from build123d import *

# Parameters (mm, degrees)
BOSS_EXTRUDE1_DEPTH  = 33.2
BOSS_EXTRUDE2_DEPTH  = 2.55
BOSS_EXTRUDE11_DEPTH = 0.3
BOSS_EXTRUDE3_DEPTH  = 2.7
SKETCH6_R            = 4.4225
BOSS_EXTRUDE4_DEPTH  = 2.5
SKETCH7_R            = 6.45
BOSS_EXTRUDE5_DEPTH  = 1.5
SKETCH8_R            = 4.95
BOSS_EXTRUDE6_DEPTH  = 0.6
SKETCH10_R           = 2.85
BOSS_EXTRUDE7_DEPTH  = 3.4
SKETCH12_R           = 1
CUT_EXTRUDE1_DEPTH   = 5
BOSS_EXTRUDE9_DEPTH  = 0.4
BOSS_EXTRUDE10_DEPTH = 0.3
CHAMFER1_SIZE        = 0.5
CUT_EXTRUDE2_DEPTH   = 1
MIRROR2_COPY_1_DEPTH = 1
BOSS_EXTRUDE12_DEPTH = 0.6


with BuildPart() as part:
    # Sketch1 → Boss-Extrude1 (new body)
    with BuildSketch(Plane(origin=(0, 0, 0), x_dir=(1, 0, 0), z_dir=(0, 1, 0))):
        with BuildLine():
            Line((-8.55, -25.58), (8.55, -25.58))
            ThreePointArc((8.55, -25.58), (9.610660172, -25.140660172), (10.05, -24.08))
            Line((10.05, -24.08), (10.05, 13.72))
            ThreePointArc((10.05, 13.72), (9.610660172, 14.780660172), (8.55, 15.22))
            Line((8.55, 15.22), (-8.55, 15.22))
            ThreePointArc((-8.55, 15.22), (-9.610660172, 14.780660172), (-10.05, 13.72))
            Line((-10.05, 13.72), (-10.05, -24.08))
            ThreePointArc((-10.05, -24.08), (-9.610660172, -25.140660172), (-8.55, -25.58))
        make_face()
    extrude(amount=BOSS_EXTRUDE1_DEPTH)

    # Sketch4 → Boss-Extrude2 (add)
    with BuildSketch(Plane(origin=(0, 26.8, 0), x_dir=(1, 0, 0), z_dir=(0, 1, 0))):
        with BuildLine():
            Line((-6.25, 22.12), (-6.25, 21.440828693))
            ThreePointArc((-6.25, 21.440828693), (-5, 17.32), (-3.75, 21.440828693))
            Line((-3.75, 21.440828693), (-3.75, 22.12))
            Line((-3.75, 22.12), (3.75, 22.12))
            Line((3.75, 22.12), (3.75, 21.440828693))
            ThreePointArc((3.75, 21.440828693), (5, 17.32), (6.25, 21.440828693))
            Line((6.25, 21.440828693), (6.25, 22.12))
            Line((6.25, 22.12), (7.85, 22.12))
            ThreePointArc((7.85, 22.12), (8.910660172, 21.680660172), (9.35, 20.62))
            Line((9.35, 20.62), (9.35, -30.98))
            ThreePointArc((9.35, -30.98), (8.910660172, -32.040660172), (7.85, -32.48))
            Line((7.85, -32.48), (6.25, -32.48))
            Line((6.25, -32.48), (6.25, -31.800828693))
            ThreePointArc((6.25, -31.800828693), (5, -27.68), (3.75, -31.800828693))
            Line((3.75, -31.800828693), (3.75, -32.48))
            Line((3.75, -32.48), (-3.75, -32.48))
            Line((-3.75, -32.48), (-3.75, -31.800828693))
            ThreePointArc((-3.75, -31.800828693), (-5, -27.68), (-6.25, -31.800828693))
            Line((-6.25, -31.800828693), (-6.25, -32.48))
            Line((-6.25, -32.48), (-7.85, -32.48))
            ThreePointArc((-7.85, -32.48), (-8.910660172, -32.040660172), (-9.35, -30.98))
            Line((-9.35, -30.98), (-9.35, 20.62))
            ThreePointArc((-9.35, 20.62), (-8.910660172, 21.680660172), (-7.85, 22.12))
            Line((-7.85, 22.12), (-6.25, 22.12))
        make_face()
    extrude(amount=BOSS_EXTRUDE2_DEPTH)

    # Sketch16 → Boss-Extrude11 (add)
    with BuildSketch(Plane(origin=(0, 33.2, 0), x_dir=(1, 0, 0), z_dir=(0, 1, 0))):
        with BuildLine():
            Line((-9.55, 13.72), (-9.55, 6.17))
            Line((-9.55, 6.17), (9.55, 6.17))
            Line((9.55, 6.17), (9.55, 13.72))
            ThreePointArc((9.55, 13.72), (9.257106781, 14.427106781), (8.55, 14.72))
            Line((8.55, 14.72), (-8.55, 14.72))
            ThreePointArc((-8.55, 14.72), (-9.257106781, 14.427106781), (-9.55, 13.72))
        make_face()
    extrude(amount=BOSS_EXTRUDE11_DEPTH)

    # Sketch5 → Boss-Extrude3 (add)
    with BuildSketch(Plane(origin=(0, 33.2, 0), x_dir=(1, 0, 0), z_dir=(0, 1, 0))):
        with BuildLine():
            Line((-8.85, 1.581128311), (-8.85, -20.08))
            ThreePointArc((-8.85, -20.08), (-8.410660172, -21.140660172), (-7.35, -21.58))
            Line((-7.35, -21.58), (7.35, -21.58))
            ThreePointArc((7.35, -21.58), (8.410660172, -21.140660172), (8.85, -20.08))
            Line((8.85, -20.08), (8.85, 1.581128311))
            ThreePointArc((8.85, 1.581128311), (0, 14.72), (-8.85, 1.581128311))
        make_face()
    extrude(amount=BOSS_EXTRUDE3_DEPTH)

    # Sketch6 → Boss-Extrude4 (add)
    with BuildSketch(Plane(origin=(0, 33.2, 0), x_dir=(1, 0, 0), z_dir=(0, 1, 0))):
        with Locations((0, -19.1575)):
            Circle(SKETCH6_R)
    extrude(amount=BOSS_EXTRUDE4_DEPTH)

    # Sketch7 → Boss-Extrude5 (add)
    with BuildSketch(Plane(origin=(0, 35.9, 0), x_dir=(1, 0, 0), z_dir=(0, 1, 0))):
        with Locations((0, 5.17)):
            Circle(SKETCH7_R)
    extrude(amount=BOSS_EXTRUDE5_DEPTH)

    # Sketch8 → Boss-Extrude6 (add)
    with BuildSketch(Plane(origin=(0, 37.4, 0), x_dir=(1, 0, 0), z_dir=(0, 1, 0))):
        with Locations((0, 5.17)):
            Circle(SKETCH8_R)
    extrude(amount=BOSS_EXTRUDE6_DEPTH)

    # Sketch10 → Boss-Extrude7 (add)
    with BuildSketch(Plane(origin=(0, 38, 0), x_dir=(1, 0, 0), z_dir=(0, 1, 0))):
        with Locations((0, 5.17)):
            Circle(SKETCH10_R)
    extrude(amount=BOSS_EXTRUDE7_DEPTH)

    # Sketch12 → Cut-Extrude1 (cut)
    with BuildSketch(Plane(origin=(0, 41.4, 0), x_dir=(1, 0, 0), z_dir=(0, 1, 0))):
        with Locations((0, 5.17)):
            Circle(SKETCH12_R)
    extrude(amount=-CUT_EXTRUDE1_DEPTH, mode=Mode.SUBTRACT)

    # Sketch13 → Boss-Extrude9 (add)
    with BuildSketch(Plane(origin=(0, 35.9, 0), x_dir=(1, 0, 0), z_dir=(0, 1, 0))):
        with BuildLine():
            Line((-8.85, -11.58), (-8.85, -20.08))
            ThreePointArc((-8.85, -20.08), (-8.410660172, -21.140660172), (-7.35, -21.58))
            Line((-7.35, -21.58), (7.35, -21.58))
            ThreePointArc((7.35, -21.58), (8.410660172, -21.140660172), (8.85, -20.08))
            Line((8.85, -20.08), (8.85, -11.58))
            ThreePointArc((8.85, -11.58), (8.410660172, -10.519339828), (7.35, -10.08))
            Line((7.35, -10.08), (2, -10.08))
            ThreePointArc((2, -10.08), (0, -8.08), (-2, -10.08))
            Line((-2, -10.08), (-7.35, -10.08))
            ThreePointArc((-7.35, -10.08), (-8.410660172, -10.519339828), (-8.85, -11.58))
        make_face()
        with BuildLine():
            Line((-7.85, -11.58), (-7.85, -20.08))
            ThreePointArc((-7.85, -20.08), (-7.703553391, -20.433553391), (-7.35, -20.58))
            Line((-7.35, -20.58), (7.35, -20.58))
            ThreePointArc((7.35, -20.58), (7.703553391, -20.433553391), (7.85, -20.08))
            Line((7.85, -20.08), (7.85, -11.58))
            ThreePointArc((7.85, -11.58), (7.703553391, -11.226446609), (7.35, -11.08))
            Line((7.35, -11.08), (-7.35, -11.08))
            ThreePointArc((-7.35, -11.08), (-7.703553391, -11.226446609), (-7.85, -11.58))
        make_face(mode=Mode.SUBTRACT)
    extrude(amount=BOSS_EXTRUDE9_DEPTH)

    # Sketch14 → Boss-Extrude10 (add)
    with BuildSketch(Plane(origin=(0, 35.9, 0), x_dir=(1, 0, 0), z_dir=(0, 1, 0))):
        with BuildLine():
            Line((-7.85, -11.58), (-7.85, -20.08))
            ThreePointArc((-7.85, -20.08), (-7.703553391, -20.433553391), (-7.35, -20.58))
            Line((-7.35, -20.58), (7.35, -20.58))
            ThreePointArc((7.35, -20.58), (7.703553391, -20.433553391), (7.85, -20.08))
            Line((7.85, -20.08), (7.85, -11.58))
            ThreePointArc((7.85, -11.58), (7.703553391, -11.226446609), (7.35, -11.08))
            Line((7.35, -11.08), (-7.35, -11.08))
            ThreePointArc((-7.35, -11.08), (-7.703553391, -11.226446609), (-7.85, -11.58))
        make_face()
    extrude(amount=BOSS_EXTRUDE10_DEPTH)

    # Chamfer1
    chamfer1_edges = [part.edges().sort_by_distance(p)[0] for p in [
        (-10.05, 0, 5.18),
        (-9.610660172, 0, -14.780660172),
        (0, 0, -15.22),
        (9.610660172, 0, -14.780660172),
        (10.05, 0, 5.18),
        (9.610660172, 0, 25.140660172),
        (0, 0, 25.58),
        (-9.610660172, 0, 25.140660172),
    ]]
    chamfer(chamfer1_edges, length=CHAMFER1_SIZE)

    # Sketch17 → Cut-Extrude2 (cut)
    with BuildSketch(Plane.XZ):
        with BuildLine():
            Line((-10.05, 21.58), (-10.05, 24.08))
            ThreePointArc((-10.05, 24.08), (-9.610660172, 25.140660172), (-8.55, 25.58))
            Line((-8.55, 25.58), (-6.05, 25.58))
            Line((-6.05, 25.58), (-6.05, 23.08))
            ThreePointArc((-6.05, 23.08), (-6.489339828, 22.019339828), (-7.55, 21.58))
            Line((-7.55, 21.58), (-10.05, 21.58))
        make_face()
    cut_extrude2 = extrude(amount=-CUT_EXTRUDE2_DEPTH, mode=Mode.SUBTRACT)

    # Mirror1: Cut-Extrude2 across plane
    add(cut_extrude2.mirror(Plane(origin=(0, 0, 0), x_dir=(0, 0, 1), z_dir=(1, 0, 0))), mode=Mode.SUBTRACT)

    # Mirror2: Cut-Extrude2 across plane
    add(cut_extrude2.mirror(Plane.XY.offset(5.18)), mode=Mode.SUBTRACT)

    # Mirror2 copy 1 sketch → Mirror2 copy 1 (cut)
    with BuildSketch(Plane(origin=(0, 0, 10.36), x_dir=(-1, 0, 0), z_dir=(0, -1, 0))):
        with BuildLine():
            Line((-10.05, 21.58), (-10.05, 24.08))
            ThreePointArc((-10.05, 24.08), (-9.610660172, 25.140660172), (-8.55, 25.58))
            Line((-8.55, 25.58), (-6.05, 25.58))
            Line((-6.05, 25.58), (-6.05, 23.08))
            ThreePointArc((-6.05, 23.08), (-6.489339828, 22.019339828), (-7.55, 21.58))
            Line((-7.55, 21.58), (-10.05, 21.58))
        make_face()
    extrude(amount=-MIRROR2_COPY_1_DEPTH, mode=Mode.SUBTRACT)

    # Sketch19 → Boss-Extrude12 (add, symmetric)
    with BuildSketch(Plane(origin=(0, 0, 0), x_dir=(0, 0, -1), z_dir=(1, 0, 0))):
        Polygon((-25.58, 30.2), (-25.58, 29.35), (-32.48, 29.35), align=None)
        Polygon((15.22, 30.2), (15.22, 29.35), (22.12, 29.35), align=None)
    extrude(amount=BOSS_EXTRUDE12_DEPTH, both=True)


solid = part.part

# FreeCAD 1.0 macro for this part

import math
import FreeCAD as App
import Part
import Sketcher

V = App.Vector


def edges_at(feature, points):
    """Names of the edges that pass closest to the given points."""
    edges = feature.Shape.Edges
    near = lambda p: min(range(len(edges)), key=lambda i: edges[i].distToShape(Part.Vertex(*p))[0])
    return sorted({f"Edge{near(p) + 1}" for p in points})

doc = App.newDocument("Part")
body = doc.addObject("PartDesign::Body", "Body")

# Sketch on XZ plane
sketch1 = body.newObject("Sketcher::SketchObject", "Sketch")
sketch1.AttachmentSupport = (doc.getObject("XZ_Plane"), [""])
sketch1.MapMode = "FlatFace"
sketch1.addGeometry(Part.LineSegment(V(-8.55, 25.58, 0), V(8.55, 25.58, 0)), False)
sketch1.addGeometry(Part.ArcOfCircle(Part.Circle(V(8.55, 24.08, 0), V(0, 0, 1), 1.5), math.radians(0), math.radians(90)), False)
sketch1.addGeometry(Part.LineSegment(V(10.05, 24.08, 0), V(10.05, -13.72, 0)), False)
sketch1.addGeometry(Part.ArcOfCircle(Part.Circle(V(8.55, -13.72, 0), V(0, 0, 1), 1.5), math.radians(-90), math.radians(0)), False)
sketch1.addGeometry(Part.LineSegment(V(8.55, -15.22, 0), V(-8.55, -15.22, 0)), False)
sketch1.addGeometry(Part.ArcOfCircle(Part.Circle(V(-8.55, -13.72, 0), V(0, 0, 1), 1.5), math.radians(180), math.radians(270)), False)
sketch1.addGeometry(Part.LineSegment(V(-10.05, -13.72, 0), V(-10.05, 24.08, 0)), False)
sketch1.addGeometry(Part.ArcOfCircle(Part.Circle(V(-8.55, 24.08, 0), V(0, 0, 1), 1.5), math.radians(90), math.radians(180)), False)
sketch1.addConstraint(Sketcher.Constraint("Tangent", 0, 2, 1, 2))
sketch1.addConstraint(Sketcher.Constraint("Tangent", 1, 1, 2, 1))
sketch1.addConstraint(Sketcher.Constraint("Tangent", 2, 2, 3, 2))
sketch1.addConstraint(Sketcher.Constraint("Tangent", 3, 1, 4, 1))
sketch1.addConstraint(Sketcher.Constraint("Tangent", 4, 2, 5, 2))
sketch1.addConstraint(Sketcher.Constraint("Tangent", 5, 1, 6, 1))
sketch1.addConstraint(Sketcher.Constraint("Tangent", 6, 2, 7, 2))
sketch1.addConstraint(Sketcher.Constraint("Tangent", 7, 1, 0, 1))
sketch1.addConstraint(Sketcher.Constraint("Horizontal", 0))
sketch1.addConstraint(Sketcher.Constraint("Vertical", 2))
sketch1.addConstraint(Sketcher.Constraint("Horizontal", 4))
sketch1.addConstraint(Sketcher.Constraint("Vertical", 6))
sketch1.addConstraint(Sketcher.Constraint("Equal", 1, 3))
sketch1.addConstraint(Sketcher.Constraint("Equal", 3, 5))
sketch1.addConstraint(Sketcher.Constraint("Equal", 5, 7))
sketch1.addConstraint(Sketcher.Constraint("Radius", 1, 1.5))
sketch1.addConstraint(Sketcher.Constraint("DistanceX", 0, 1, 0, 2, 17.1))
sketch1.addConstraint(Sketcher.Constraint("DistanceY", 2, 2, 2, 1, 37.8))
sketch1.addConstraint(Sketcher.Constraint("DistanceX", -1, 1, 1, 3, 8.55))
sketch1.addConstraint(Sketcher.Constraint("DistanceY", -1, 1, 1, 3, 24.08))
pad1 = body.newObject("PartDesign::Pad", "Pad")
pad1.Profile = sketch1
pad1.Length = 33.2
pad1.Reversed = True

# Sketch on XZ plane
sketch2 = body.newObject("Sketcher::SketchObject", "Sketch001")
sketch2.AttachmentSupport = (doc.getObject("XZ_Plane"), [""])
sketch2.MapMode = "FlatFace"
sketch2.AttachmentOffset = App.Placement(V(0, 0, -26.8), App.Rotation())
sketch2.addGeometry(Part.LineSegment(V(-6.25, -21.440829, 0), V(-6.25, -22.12, 0)), False)
sketch2.addGeometry(Part.LineSegment(V(-6.25, -22.12, 0), V(-7.85, -22.12, 0)), False)
sketch2.addGeometry(Part.ArcOfCircle(Part.Circle(V(-7.85, -20.62, 0), V(0, 0, 1), 1.5), math.radians(180), math.radians(270)), False)
sketch2.addGeometry(Part.LineSegment(V(-9.35, -20.62, 0), V(-9.35, 30.98, 0)), False)
sketch2.addGeometry(Part.ArcOfCircle(Part.Circle(V(-7.85, 30.98, 0), V(0, 0, 1), 1.5), math.radians(90), math.radians(180)), False)
sketch2.addGeometry(Part.LineSegment(V(-7.85, 32.48, 0), V(-6.25, 32.48, 0)), False)
sketch2.addGeometry(Part.LineSegment(V(-6.25, 32.48, 0), V(-6.25, 31.800829, 0)), False)
sketch2.addGeometry(Part.ArcOfCircle(Part.Circle(V(-5, 29.93, 0), V(0, 0, 1), 2.25), math.radians(123.748989), math.radians(416.251011)), False)
sketch2.addGeometry(Part.LineSegment(V(-3.75, 31.800829, 0), V(-3.75, 32.48, 0)), False)
sketch2.addGeometry(Part.LineSegment(V(-3.75, 32.48, 0), V(3.75, 32.48, 0)), False)
sketch2.addGeometry(Part.LineSegment(V(3.75, 32.48, 0), V(3.75, 31.800829, 0)), False)
sketch2.addGeometry(Part.ArcOfCircle(Part.Circle(V(5, 29.93, 0), V(0, 0, 1), 2.25), math.radians(123.748989), math.radians(416.251011)), False)
sketch2.addGeometry(Part.LineSegment(V(6.25, 31.800829, 0), V(6.25, 32.48, 0)), False)
sketch2.addGeometry(Part.LineSegment(V(6.25, 32.48, 0), V(7.85, 32.48, 0)), False)
sketch2.addGeometry(Part.ArcOfCircle(Part.Circle(V(7.85, 30.98, 0), V(0, 0, 1), 1.5), math.radians(0), math.radians(90)), False)
sketch2.addGeometry(Part.LineSegment(V(9.35, 30.98, 0), V(9.35, -20.62, 0)), False)
sketch2.addGeometry(Part.ArcOfCircle(Part.Circle(V(7.85, -20.62, 0), V(0, 0, 1), 1.5), math.radians(-90), math.radians(0)), False)
sketch2.addGeometry(Part.LineSegment(V(7.85, -22.12, 0), V(6.25, -22.12, 0)), False)
sketch2.addGeometry(Part.LineSegment(V(6.25, -22.12, 0), V(6.25, -21.440829, 0)), False)
sketch2.addGeometry(Part.ArcOfCircle(Part.Circle(V(5, -19.57, 0), V(0, 0, 1), 2.25), math.radians(-56.251011), math.radians(236.251011)), False)
sketch2.addGeometry(Part.LineSegment(V(3.75, -21.440829, 0), V(3.75, -22.12, 0)), False)
sketch2.addGeometry(Part.LineSegment(V(3.75, -22.12, 0), V(-3.75, -22.12, 0)), False)
sketch2.addGeometry(Part.LineSegment(V(-3.75, -22.12, 0), V(-3.75, -21.440829, 0)), False)
sketch2.addGeometry(Part.ArcOfCircle(Part.Circle(V(-5, -19.57, 0), V(0, 0, 1), 2.25), math.radians(-56.251011), math.radians(236.251011)), False)
sketch2.addConstraint(Sketcher.Constraint("Coincident", 0, 2, 1, 1))
sketch2.addConstraint(Sketcher.Constraint("Tangent", 1, 2, 2, 2))
sketch2.addConstraint(Sketcher.Constraint("Tangent", 2, 1, 3, 1))
sketch2.addConstraint(Sketcher.Constraint("Tangent", 3, 2, 4, 2))
sketch2.addConstraint(Sketcher.Constraint("Tangent", 4, 1, 5, 1))
sketch2.addConstraint(Sketcher.Constraint("Coincident", 5, 2, 6, 1))
sketch2.addConstraint(Sketcher.Constraint("Coincident", 6, 2, 7, 1))
sketch2.addConstraint(Sketcher.Constraint("Coincident", 7, 2, 8, 1))
sketch2.addConstraint(Sketcher.Constraint("Coincident", 8, 2, 9, 1))
sketch2.addConstraint(Sketcher.Constraint("Coincident", 9, 2, 10, 1))
sketch2.addConstraint(Sketcher.Constraint("Coincident", 10, 2, 11, 1))
sketch2.addConstraint(Sketcher.Constraint("Coincident", 11, 2, 12, 1))
sketch2.addConstraint(Sketcher.Constraint("Coincident", 12, 2, 13, 1))
sketch2.addConstraint(Sketcher.Constraint("Tangent", 13, 2, 14, 2))
sketch2.addConstraint(Sketcher.Constraint("Tangent", 14, 1, 15, 1))
sketch2.addConstraint(Sketcher.Constraint("Tangent", 15, 2, 16, 2))
sketch2.addConstraint(Sketcher.Constraint("Tangent", 16, 1, 17, 1))
sketch2.addConstraint(Sketcher.Constraint("Coincident", 17, 2, 18, 1))
sketch2.addConstraint(Sketcher.Constraint("Coincident", 18, 2, 19, 1))
sketch2.addConstraint(Sketcher.Constraint("Coincident", 19, 2, 20, 1))
sketch2.addConstraint(Sketcher.Constraint("Coincident", 20, 2, 21, 1))
sketch2.addConstraint(Sketcher.Constraint("Coincident", 21, 2, 22, 1))
sketch2.addConstraint(Sketcher.Constraint("Coincident", 22, 2, 23, 1))
sketch2.addConstraint(Sketcher.Constraint("Coincident", 23, 2, 0, 1))
sketch2.addConstraint(Sketcher.Constraint("Vertical", 0))
sketch2.addConstraint(Sketcher.Constraint("Horizontal", 1))
sketch2.addConstraint(Sketcher.Constraint("Vertical", 3))
sketch2.addConstraint(Sketcher.Constraint("Horizontal", 5))
sketch2.addConstraint(Sketcher.Constraint("Vertical", 6))
sketch2.addConstraint(Sketcher.Constraint("Vertical", 8))
sketch2.addConstraint(Sketcher.Constraint("Horizontal", 9))
sketch2.addConstraint(Sketcher.Constraint("Vertical", 10))
sketch2.addConstraint(Sketcher.Constraint("Vertical", 12))
sketch2.addConstraint(Sketcher.Constraint("Horizontal", 13))
sketch2.addConstraint(Sketcher.Constraint("Vertical", 15))
sketch2.addConstraint(Sketcher.Constraint("Horizontal", 17))
sketch2.addConstraint(Sketcher.Constraint("Vertical", 18))
sketch2.addConstraint(Sketcher.Constraint("Vertical", 20))
sketch2.addConstraint(Sketcher.Constraint("Horizontal", 21))
sketch2.addConstraint(Sketcher.Constraint("Vertical", 22))
sketch2.addConstraint(Sketcher.Constraint("Equal", 2, 4))
sketch2.addConstraint(Sketcher.Constraint("Equal", 7, 11))
sketch2.addConstraint(Sketcher.Constraint("Equal", 4, 14))
sketch2.addConstraint(Sketcher.Constraint("Equal", 14, 16))
sketch2.addConstraint(Sketcher.Constraint("Equal", 11, 19))
sketch2.addConstraint(Sketcher.Constraint("Equal", 19, 23))
sketch2.addConstraint(Sketcher.Constraint("Symmetric", 7, 3, 11, 3, -2))
sketch2.addConstraint(Sketcher.Constraint("Symmetric", 4, 3, 14, 3, -2))
sketch2.addConstraint(Sketcher.Constraint("Symmetric", 19, 3, 23, 3, -2))
sketch2.addConstraint(Sketcher.Constraint("Symmetric", 0, 2, 17, 2, -2))
sketch2.addConstraint(Sketcher.Constraint("Horizontal", 6, 2, 7, 2))
sketch2.addConstraint(Sketcher.Constraint("Horizontal", 5, 2, 8, 2))
sketch2.addConstraint(Sketcher.Constraint("Horizontal", 7, 2, 10, 2))
sketch2.addConstraint(Sketcher.Constraint("Horizontal", 10, 2, 11, 2))
sketch2.addConstraint(Sketcher.Constraint("Horizontal", 18, 2, 19, 2))
sketch2.addConstraint(Sketcher.Constraint("Horizontal", 17, 2, 20, 2))
sketch2.addConstraint(Sketcher.Constraint("Horizontal", 19, 2, 22, 2))
sketch2.addConstraint(Sketcher.Constraint("Vertical", 11, 3, 19, 3))
sketch2.addConstraint(Sketcher.Constraint("Vertical", 0, 2, 5, 2))
sketch2.addConstraint(Sketcher.Constraint("Equal", 0, 6))
sketch2.addConstraint(Sketcher.Constraint("Radius", 2, 1.5))
sketch2.addConstraint(Sketcher.Constraint("Radius", 7, 2.25))
sketch2.addConstraint(Sketcher.Constraint("DistanceX", 1, 2, 1, 1, 1.6))
sketch2.addConstraint(Sketcher.Constraint("DistanceX", 9, 1, 9, 2, 7.5))
sketch2.addConstraint(Sketcher.Constraint("DistanceY", 3, 1, 3, 2, 51.6))
sketch2.addConstraint(Sketcher.Constraint("DistanceX", 7, 3, -1, 1, 5.0))
sketch2.addConstraint(Sketcher.Constraint("DistanceY", 19, 3, 11, 3, 49.5))
sketch2.addConstraint(Sketcher.Constraint("DistanceY", 2, 3, -1, 1, 20.62))
pad2 = body.newObject("PartDesign::Pad", "Pad001")
pad2.Profile = sketch2
pad2.Length = 2.55
pad2.Reversed = True

# Sketch on XZ plane
sketch3 = body.newObject("Sketcher::SketchObject", "Sketch002")
sketch3.AttachmentSupport = (doc.getObject("XZ_Plane"), [""])
sketch3.MapMode = "FlatFace"
sketch3.AttachmentOffset = App.Placement(V(0, 0, -33.2), App.Rotation())
sketch3.addGeometry(Part.LineSegment(V(-9.55, -13.72, 0), V(-9.55, -6.17, 0)), False)
sketch3.addGeometry(Part.LineSegment(V(-9.55, -6.17, 0), V(9.55, -6.17, 0)), False)
sketch3.addGeometry(Part.LineSegment(V(9.55, -6.17, 0), V(9.55, -13.72, 0)), False)
sketch3.addGeometry(Part.ArcOfCircle(Part.Circle(V(8.55, -13.72, 0), V(0, 0, 1), 1), math.radians(-90), math.radians(0)), False)
sketch3.addGeometry(Part.LineSegment(V(8.55, -14.72, 0), V(-8.55, -14.72, 0)), False)
sketch3.addGeometry(Part.ArcOfCircle(Part.Circle(V(-8.55, -13.72, 0), V(0, 0, 1), 1), math.radians(-180), math.radians(-90)), False)
sketch3.addConstraint(Sketcher.Constraint("Coincident", 0, 2, 1, 1))
sketch3.addConstraint(Sketcher.Constraint("Coincident", 1, 2, 2, 1))
sketch3.addConstraint(Sketcher.Constraint("Tangent", 2, 2, 3, 2))
sketch3.addConstraint(Sketcher.Constraint("Tangent", 3, 1, 4, 1))
sketch3.addConstraint(Sketcher.Constraint("Tangent", 4, 2, 5, 2))
sketch3.addConstraint(Sketcher.Constraint("Tangent", 5, 1, 0, 1))
sketch3.addConstraint(Sketcher.Constraint("Vertical", 0))
sketch3.addConstraint(Sketcher.Constraint("Horizontal", 1))
sketch3.addConstraint(Sketcher.Constraint("Vertical", 2))
sketch3.addConstraint(Sketcher.Constraint("Horizontal", 4))
sketch3.addConstraint(Sketcher.Constraint("Equal", 3, 5))
sketch3.addConstraint(Sketcher.Constraint("Radius", 3, 1.0))
sketch3.addConstraint(Sketcher.Constraint("DistanceX", 1, 1, 1, 2, 19.1))
sketch3.addConstraint(Sketcher.Constraint("DistanceY", 0, 1, 0, 2, 7.55))
sketch3.addConstraint(Sketcher.Constraint("DistanceX", -1, 1, 3, 3, 8.55))
sketch3.addConstraint(Sketcher.Constraint("DistanceY", 3, 3, -1, 1, 13.72))
pad3 = body.newObject("PartDesign::Pad", "Pad002")
pad3.Profile = sketch3
pad3.Length = 0.3
pad3.Reversed = True

# Sketch on XZ plane
sketch4 = body.newObject("Sketcher::SketchObject", "Sketch003")
sketch4.AttachmentSupport = (doc.getObject("XZ_Plane"), [""])
sketch4.MapMode = "FlatFace"
sketch4.AttachmentOffset = App.Placement(V(0, 0, -33.2), App.Rotation())
sketch4.addGeometry(Part.LineSegment(V(-8.85, -1.581128, 0), V(-8.85, 20.08, 0)), False)
sketch4.addGeometry(Part.ArcOfCircle(Part.Circle(V(-7.35, 20.08, 0), V(0, 0, 1), 1.5), math.radians(90), math.radians(180)), False)
sketch4.addGeometry(Part.LineSegment(V(-7.35, 21.58, 0), V(7.35, 21.58, 0)), False)
sketch4.addGeometry(Part.ArcOfCircle(Part.Circle(V(7.35, 20.08, 0), V(0, 0, 1), 1.5), math.radians(0), math.radians(90)), False)
sketch4.addGeometry(Part.LineSegment(V(8.85, 20.08, 0), V(8.85, -1.581128, 0)), False)
sketch4.addGeometry(Part.ArcOfCircle(Part.Circle(V(0, -5.17, 0), V(0, 0, 1), 9.55), math.radians(157.926352), math.radians(382.073648)), False)
sketch4.addConstraint(Sketcher.Constraint("Tangent", 0, 2, 1, 2))
sketch4.addConstraint(Sketcher.Constraint("Tangent", 1, 1, 2, 1))
sketch4.addConstraint(Sketcher.Constraint("Tangent", 2, 2, 3, 2))
sketch4.addConstraint(Sketcher.Constraint("Tangent", 3, 1, 4, 1))
sketch4.addConstraint(Sketcher.Constraint("Coincident", 4, 2, 5, 2))
sketch4.addConstraint(Sketcher.Constraint("Coincident", 5, 1, 0, 1))
sketch4.addConstraint(Sketcher.Constraint("Vertical", 0))
sketch4.addConstraint(Sketcher.Constraint("Horizontal", 2))
sketch4.addConstraint(Sketcher.Constraint("Vertical", 4))
sketch4.addConstraint(Sketcher.Constraint("Equal", 1, 3))
sketch4.addConstraint(Sketcher.Constraint("Symmetric", 4, 2, 5, 1, -2))
sketch4.addConstraint(Sketcher.Constraint("Radius", 1, 1.5))
sketch4.addConstraint(Sketcher.Constraint("Radius", 5, 9.55))
sketch4.addConstraint(Sketcher.Constraint("DistanceX", 2, 1, 2, 2, 14.7))
sketch4.addConstraint(Sketcher.Constraint("DistanceY", -1, 1, 1, 3, 20.08))
sketch4.addConstraint(Sketcher.Constraint("DistanceY", 5, 3, -1, 1, 5.17))
pad4 = body.newObject("PartDesign::Pad", "Pad003")
pad4.Profile = sketch4
pad4.Length = 2.7
pad4.Reversed = True

# Sketch on XZ plane
sketch5 = body.newObject("Sketcher::SketchObject", "Sketch004")
sketch5.AttachmentSupport = (doc.getObject("XZ_Plane"), [""])
sketch5.MapMode = "FlatFace"
sketch5.AttachmentOffset = App.Placement(V(0, 0, -33.2), App.Rotation())
sketch5.addGeometry(Part.Circle(V(0, 19.1575, 0), V(0, 0, 1), 4.4225), False)
sketch5.addConstraint(Sketcher.Constraint("PointOnObject", 0, 3, -2))
sketch5.addConstraint(Sketcher.Constraint("Diameter", 0, 8.845))
sketch5.addConstraint(Sketcher.Constraint("DistanceY", -1, 1, 0, 3, 19.1575))
pad5 = body.newObject("PartDesign::Pad", "Pad004")
pad5.Profile = sketch5
pad5.Length = 2.5
pad5.Reversed = True

# Sketch on XZ plane
sketch6 = body.newObject("Sketcher::SketchObject", "Sketch005")
sketch6.AttachmentSupport = (doc.getObject("XZ_Plane"), [""])
sketch6.MapMode = "FlatFace"
sketch6.AttachmentOffset = App.Placement(V(0, 0, -35.9), App.Rotation())
sketch6.addGeometry(Part.Circle(V(0, -5.17, 0), V(0, 0, 1), 6.45), False)
sketch6.addConstraint(Sketcher.Constraint("PointOnObject", 0, 3, -2))
sketch6.addConstraint(Sketcher.Constraint("Diameter", 0, 12.9))
sketch6.addConstraint(Sketcher.Constraint("DistanceY", 0, 3, -1, 1, 5.17))
pad6 = body.newObject("PartDesign::Pad", "Pad005")
pad6.Profile = sketch6
pad6.Length = 1.5
pad6.Reversed = True

# Sketch on XZ plane
sketch7 = body.newObject("Sketcher::SketchObject", "Sketch006")
sketch7.AttachmentSupport = (doc.getObject("XZ_Plane"), [""])
sketch7.MapMode = "FlatFace"
sketch7.AttachmentOffset = App.Placement(V(0, 0, -37.4), App.Rotation())
sketch7.addGeometry(Part.Circle(V(0, -5.17, 0), V(0, 0, 1), 4.95), False)
sketch7.addConstraint(Sketcher.Constraint("PointOnObject", 0, 3, -2))
sketch7.addConstraint(Sketcher.Constraint("Diameter", 0, 9.9))
sketch7.addConstraint(Sketcher.Constraint("DistanceY", 0, 3, -1, 1, 5.17))
pad7 = body.newObject("PartDesign::Pad", "Pad006")
pad7.Profile = sketch7
pad7.Length = 0.6
pad7.Reversed = True

# Sketch on XZ plane
sketch8 = body.newObject("Sketcher::SketchObject", "Sketch007")
sketch8.AttachmentSupport = (doc.getObject("XZ_Plane"), [""])
sketch8.MapMode = "FlatFace"
sketch8.AttachmentOffset = App.Placement(V(0, 0, -38), App.Rotation())
sketch8.addGeometry(Part.Circle(V(0, -5.17, 0), V(0, 0, 1), 2.85), False)
sketch8.addConstraint(Sketcher.Constraint("PointOnObject", 0, 3, -2))
sketch8.addConstraint(Sketcher.Constraint("Diameter", 0, 5.7))
sketch8.addConstraint(Sketcher.Constraint("DistanceY", 0, 3, -1, 1, 5.17))
pad8 = body.newObject("PartDesign::Pad", "Pad007")
pad8.Profile = sketch8
pad8.Length = 3.4
pad8.Reversed = True

# Sketch on XZ plane
sketch9 = body.newObject("Sketcher::SketchObject", "Sketch008")
sketch9.AttachmentSupport = (doc.getObject("XZ_Plane"), [""])
sketch9.MapMode = "FlatFace"
sketch9.AttachmentOffset = App.Placement(V(0, 0, -41.4), App.Rotation())
sketch9.addGeometry(Part.Circle(V(0, -5.17, 0), V(0, 0, 1), 1), False)
sketch9.addConstraint(Sketcher.Constraint("PointOnObject", 0, 3, -2))
sketch9.addConstraint(Sketcher.Constraint("Diameter", 0, 2.0))
sketch9.addConstraint(Sketcher.Constraint("DistanceY", 0, 3, -1, 1, 5.17))
pocket1 = body.newObject("PartDesign::Pocket", "Pocket")
pocket1.Profile = sketch9
pocket1.Length = 5
pocket1.Reversed = True

# Sketch on XZ plane
sketch10 = body.newObject("Sketcher::SketchObject", "Sketch009")
sketch10.AttachmentSupport = (doc.getObject("XZ_Plane"), [""])
sketch10.MapMode = "FlatFace"
sketch10.AttachmentOffset = App.Placement(V(0, 0, -35.9), App.Rotation())
sketch10.addGeometry(Part.LineSegment(V(-8.85, 11.58, 0), V(-8.85, 20.08, 0)), False)
sketch10.addGeometry(Part.ArcOfCircle(Part.Circle(V(-7.35, 20.08, 0), V(0, 0, 1), 1.5), math.radians(90), math.radians(180)), False)
sketch10.addGeometry(Part.LineSegment(V(-7.35, 21.58, 0), V(7.35, 21.58, 0)), False)
sketch10.addGeometry(Part.ArcOfCircle(Part.Circle(V(7.35, 20.08, 0), V(0, 0, 1), 1.5), math.radians(0), math.radians(90)), False)
sketch10.addGeometry(Part.LineSegment(V(8.85, 20.08, 0), V(8.85, 11.58, 0)), False)
sketch10.addGeometry(Part.ArcOfCircle(Part.Circle(V(7.35, 11.58, 0), V(0, 0, 1), 1.5), math.radians(-90), math.radians(0)), False)
sketch10.addGeometry(Part.LineSegment(V(7.35, 10.08, 0), V(2, 10.08, 0)), False)
sketch10.addGeometry(Part.ArcOfCircle(Part.Circle(V(0, 10.08, 0), V(0, 0, 1), 2), math.radians(180), math.radians(360)), False)
sketch10.addGeometry(Part.LineSegment(V(-2, 10.08, 0), V(-7.35, 10.08, 0)), False)
sketch10.addGeometry(Part.ArcOfCircle(Part.Circle(V(-7.35, 11.58, 0), V(0, 0, 1), 1.5), math.radians(180), math.radians(270)), False)
sketch10.addGeometry(Part.LineSegment(V(-7.85, 20.08, 0), V(-7.85, 11.58, 0)), False)
sketch10.addGeometry(Part.ArcOfCircle(Part.Circle(V(-7.35, 11.58, 0), V(0, 0, 1), 0.5), math.radians(180), math.radians(270)), False)
sketch10.addGeometry(Part.LineSegment(V(-7.35, 11.08, 0), V(7.35, 11.08, 0)), False)
sketch10.addGeometry(Part.ArcOfCircle(Part.Circle(V(7.35, 11.58, 0), V(0, 0, 1), 0.5), math.radians(-90), math.radians(0)), False)
sketch10.addGeometry(Part.LineSegment(V(7.85, 11.58, 0), V(7.85, 20.08, 0)), False)
sketch10.addGeometry(Part.ArcOfCircle(Part.Circle(V(7.35, 20.08, 0), V(0, 0, 1), 0.5), math.radians(0), math.radians(90)), False)
sketch10.addGeometry(Part.LineSegment(V(7.35, 20.58, 0), V(-7.35, 20.58, 0)), False)
sketch10.addGeometry(Part.ArcOfCircle(Part.Circle(V(-7.35, 20.08, 0), V(0, 0, 1), 0.5), math.radians(90), math.radians(180)), False)
sketch10.addConstraint(Sketcher.Constraint("Tangent", 0, 2, 1, 2))
sketch10.addConstraint(Sketcher.Constraint("Tangent", 1, 1, 2, 1))
sketch10.addConstraint(Sketcher.Constraint("Tangent", 2, 2, 3, 2))
sketch10.addConstraint(Sketcher.Constraint("Tangent", 3, 1, 4, 1))
sketch10.addConstraint(Sketcher.Constraint("Tangent", 4, 2, 5, 2))
sketch10.addConstraint(Sketcher.Constraint("Tangent", 5, 1, 6, 1))
sketch10.addConstraint(Sketcher.Constraint("Coincident", 6, 2, 7, 2))
sketch10.addConstraint(Sketcher.Constraint("Coincident", 7, 1, 8, 1))
sketch10.addConstraint(Sketcher.Constraint("Tangent", 8, 2, 9, 2))
sketch10.addConstraint(Sketcher.Constraint("Tangent", 9, 1, 0, 1))
sketch10.addConstraint(Sketcher.Constraint("Tangent", 10, 2, 11, 1))
sketch10.addConstraint(Sketcher.Constraint("Tangent", 11, 2, 12, 1))
sketch10.addConstraint(Sketcher.Constraint("Tangent", 12, 2, 13, 1))
sketch10.addConstraint(Sketcher.Constraint("Tangent", 13, 2, 14, 1))
sketch10.addConstraint(Sketcher.Constraint("Tangent", 14, 2, 15, 1))
sketch10.addConstraint(Sketcher.Constraint("Tangent", 15, 2, 16, 1))
sketch10.addConstraint(Sketcher.Constraint("Tangent", 16, 2, 17, 1))
sketch10.addConstraint(Sketcher.Constraint("Tangent", 17, 2, 10, 1))
sketch10.addConstraint(Sketcher.Constraint("Vertical", 0))
sketch10.addConstraint(Sketcher.Constraint("Horizontal", 2))
sketch10.addConstraint(Sketcher.Constraint("Vertical", 4))
sketch10.addConstraint(Sketcher.Constraint("Horizontal", 6))
sketch10.addConstraint(Sketcher.Constraint("Horizontal", 8))
sketch10.addConstraint(Sketcher.Constraint("Vertical", 10))
sketch10.addConstraint(Sketcher.Constraint("Horizontal", 12))
sketch10.addConstraint(Sketcher.Constraint("Vertical", 14))
sketch10.addConstraint(Sketcher.Constraint("Horizontal", 16))
sketch10.addConstraint(Sketcher.Constraint("Coincident", 11, 3, 9, 3))
sketch10.addConstraint(Sketcher.Constraint("Coincident", 13, 3, 5, 3))
sketch10.addConstraint(Sketcher.Constraint("Coincident", 15, 3, 3, 3))
sketch10.addConstraint(Sketcher.Constraint("Coincident", 17, 3, 1, 3))
sketch10.addConstraint(Sketcher.Constraint("Equal", 1, 3))
sketch10.addConstraint(Sketcher.Constraint("Equal", 3, 5))
sketch10.addConstraint(Sketcher.Constraint("Equal", 5, 9))
sketch10.addConstraint(Sketcher.Constraint("PointOnObject", 7, 3, -2))
sketch10.addConstraint(Sketcher.Constraint("Horizontal", 7, 3, 5, 1))
sketch10.addConstraint(Sketcher.Constraint("Equal", 6, 8))
sketch10.addConstraint(Sketcher.Constraint("Radius", 7, 2.0))
sketch10.addConstraint(Sketcher.Constraint("Radius", 1, 1.5))
sketch10.addConstraint(Sketcher.Constraint("Radius", 11, 0.5))
sketch10.addConstraint(Sketcher.Constraint("DistanceX", 2, 1, 2, 2, 14.7))
sketch10.addConstraint(Sketcher.Constraint("DistanceY", 0, 1, 0, 2, 8.5))
sketch10.addConstraint(Sketcher.Constraint("DistanceY", -1, 1, 1, 3, 20.08))
pad9 = body.newObject("PartDesign::Pad", "Pad008")
pad9.Profile = sketch10
pad9.Length = 0.4
pad9.Reversed = True

# Sketch on XZ plane
sketch11 = body.newObject("Sketcher::SketchObject", "Sketch010")
sketch11.AttachmentSupport = (doc.getObject("XZ_Plane"), [""])
sketch11.MapMode = "FlatFace"
sketch11.AttachmentOffset = App.Placement(V(0, 0, -35.9), App.Rotation())
sketch11.addGeometry(Part.LineSegment(V(-7.85, 11.58, 0), V(-7.85, 20.08, 0)), False)
sketch11.addGeometry(Part.ArcOfCircle(Part.Circle(V(-7.35, 20.08, 0), V(0, 0, 1), 0.5), math.radians(90), math.radians(180)), False)
sketch11.addGeometry(Part.LineSegment(V(-7.35, 20.58, 0), V(7.35, 20.58, 0)), False)
sketch11.addGeometry(Part.ArcOfCircle(Part.Circle(V(7.35, 20.08, 0), V(0, 0, 1), 0.5), math.radians(0), math.radians(90)), False)
sketch11.addGeometry(Part.LineSegment(V(7.85, 20.08, 0), V(7.85, 11.58, 0)), False)
sketch11.addGeometry(Part.ArcOfCircle(Part.Circle(V(7.35, 11.58, 0), V(0, 0, 1), 0.5), math.radians(-90), math.radians(0)), False)
sketch11.addGeometry(Part.LineSegment(V(7.35, 11.08, 0), V(-7.35, 11.08, 0)), False)
sketch11.addGeometry(Part.ArcOfCircle(Part.Circle(V(-7.35, 11.58, 0), V(0, 0, 1), 0.5), math.radians(180), math.radians(270)), False)
sketch11.addConstraint(Sketcher.Constraint("Tangent", 0, 2, 1, 2))
sketch11.addConstraint(Sketcher.Constraint("Tangent", 1, 1, 2, 1))
sketch11.addConstraint(Sketcher.Constraint("Tangent", 2, 2, 3, 2))
sketch11.addConstraint(Sketcher.Constraint("Tangent", 3, 1, 4, 1))
sketch11.addConstraint(Sketcher.Constraint("Tangent", 4, 2, 5, 2))
sketch11.addConstraint(Sketcher.Constraint("Tangent", 5, 1, 6, 1))
sketch11.addConstraint(Sketcher.Constraint("Tangent", 6, 2, 7, 2))
sketch11.addConstraint(Sketcher.Constraint("Tangent", 7, 1, 0, 1))
sketch11.addConstraint(Sketcher.Constraint("Vertical", 0))
sketch11.addConstraint(Sketcher.Constraint("Horizontal", 2))
sketch11.addConstraint(Sketcher.Constraint("Vertical", 4))
sketch11.addConstraint(Sketcher.Constraint("Horizontal", 6))
sketch11.addConstraint(Sketcher.Constraint("Equal", 1, 3))
sketch11.addConstraint(Sketcher.Constraint("Equal", 3, 5))
sketch11.addConstraint(Sketcher.Constraint("Equal", 5, 7))
sketch11.addConstraint(Sketcher.Constraint("Radius", 1, 0.5))
sketch11.addConstraint(Sketcher.Constraint("DistanceX", 2, 1, 2, 2, 14.7))
sketch11.addConstraint(Sketcher.Constraint("DistanceY", 0, 1, 0, 2, 8.5))
sketch11.addConstraint(Sketcher.Constraint("DistanceX", 1, 3, -1, 1, 7.35))
sketch11.addConstraint(Sketcher.Constraint("DistanceY", -1, 1, 1, 3, 20.08))
pad10 = body.newObject("PartDesign::Pad", "Pad009")
pad10.Profile = sketch11
pad10.Length = 0.3
pad10.Reversed = True
doc.recompute()

chamfer = body.newObject("PartDesign::Chamfer", "Chamfer")
chamfer.Base = (pad10, edges_at(pad10, [
    (-10.05, 0, 5.18),
    (-9.611, 0, -14.781),
    (0, 0, -15.22),
    (9.611, 0, -14.781),
    (10.05, 0, 5.18),
    (9.611, 0, 25.141),
    (0, 0, 25.58),
    (-9.611, 0, 25.141),
]))
chamfer.Size = 0.5

# Sketch on XZ plane
sketch12 = body.newObject("Sketcher::SketchObject", "Sketch011")
sketch12.AttachmentSupport = (doc.getObject("XZ_Plane"), [""])
sketch12.MapMode = "FlatFace"
sketch12.addGeometry(Part.LineSegment(V(-10.05, 24.08, 0), V(-10.05, 21.58, 0)), False)
sketch12.addGeometry(Part.LineSegment(V(-10.05, 21.58, 0), V(-7.55, 21.58, 0)), False)
sketch12.addGeometry(Part.ArcOfCircle(Part.Circle(V(-7.55, 23.08, 0), V(0, 0, 1), 1.5), math.radians(-90), math.radians(0)), False)
sketch12.addGeometry(Part.LineSegment(V(-6.05, 23.08, 0), V(-6.05, 25.58, 0)), False)
sketch12.addGeometry(Part.LineSegment(V(-6.05, 25.58, 0), V(-8.55, 25.58, 0)), False)
sketch12.addGeometry(Part.ArcOfCircle(Part.Circle(V(-8.55, 24.08, 0), V(0, 0, 1), 1.5), math.radians(90), math.radians(180)), False)
sketch12.addConstraint(Sketcher.Constraint("Coincident", 0, 2, 1, 1))
sketch12.addConstraint(Sketcher.Constraint("Tangent", 1, 2, 2, 1))
sketch12.addConstraint(Sketcher.Constraint("Tangent", 2, 2, 3, 1))
sketch12.addConstraint(Sketcher.Constraint("Coincident", 3, 2, 4, 1))
sketch12.addConstraint(Sketcher.Constraint("Tangent", 4, 2, 5, 1))
sketch12.addConstraint(Sketcher.Constraint("Tangent", 5, 2, 0, 1))
sketch12.addConstraint(Sketcher.Constraint("Vertical", 0))
sketch12.addConstraint(Sketcher.Constraint("Horizontal", 1))
sketch12.addConstraint(Sketcher.Constraint("Vertical", 3))
sketch12.addConstraint(Sketcher.Constraint("Horizontal", 4))
sketch12.addConstraint(Sketcher.Constraint("Equal", 2, 5))
sketch12.addConstraint(Sketcher.Constraint("Equal", 4, 0))
sketch12.addConstraint(Sketcher.Constraint("Radius", 2, 1.5))
sketch12.addConstraint(Sketcher.Constraint("DistanceX", 1, 1, 1, 2, 2.5))
sketch12.addConstraint(Sketcher.Constraint("DistanceX", 2, 3, -1, 1, 7.55))
sketch12.addConstraint(Sketcher.Constraint("DistanceY", -1, 1, 2, 3, 23.08))
pocket2 = body.newObject("PartDesign::Pocket", "Pocket001")
pocket2.Profile = sketch12
pocket2.Length = 1
doc.recompute()

mirrored = body.newObject("PartDesign::Mirrored", "Mirrored")
mirrored.Originals = [pocket2]
mirrored.MirrorPlane = (doc.getObject("YZ_Plane"), [""])
body.Tip = mirrored
doc.recompute()

datumplane = body.newObject("PartDesign::Plane", "DatumPlane")
datumplane.AttachmentSupport = (doc.getObject("XY_Plane"), [""])
datumplane.MapMode = "FlatFace"
datumplane.AttachmentOffset = App.Placement(V(0, 0, 5.18), App.Rotation())
mirrored2 = body.newObject("PartDesign::Mirrored", "Mirrored001")
mirrored2.Originals = [pocket2]
mirrored2.MirrorPlane = (datumplane, [""])
body.Tip = mirrored2

# Sketch on XZ plane
sketch13 = body.newObject("Sketcher::SketchObject", "Sketch012")
sketch13.AttachmentSupport = (doc.getObject("XZ_Plane"), [""])
sketch13.MapMode = "FlatFace"
sketch13.addGeometry(Part.LineSegment(V(10.05, -13.72, 0), V(10.05, -11.22, 0)), False)
sketch13.addGeometry(Part.LineSegment(V(10.05, -11.22, 0), V(7.55, -11.22, 0)), False)
sketch13.addGeometry(Part.ArcOfCircle(Part.Circle(V(7.55, -12.72, 0), V(0, 0, 1), 1.5), math.radians(90), math.radians(180)), False)
sketch13.addGeometry(Part.LineSegment(V(6.05, -12.72, 0), V(6.05, -15.22, 0)), False)
sketch13.addGeometry(Part.LineSegment(V(6.05, -15.22, 0), V(8.55, -15.22, 0)), False)
sketch13.addGeometry(Part.ArcOfCircle(Part.Circle(V(8.55, -13.72, 0), V(0, 0, 1), 1.5), math.radians(-90), math.radians(0)), False)
sketch13.addConstraint(Sketcher.Constraint("Coincident", 0, 2, 1, 1))
sketch13.addConstraint(Sketcher.Constraint("Tangent", 1, 2, 2, 1))
sketch13.addConstraint(Sketcher.Constraint("Tangent", 2, 2, 3, 1))
sketch13.addConstraint(Sketcher.Constraint("Coincident", 3, 2, 4, 1))
sketch13.addConstraint(Sketcher.Constraint("Tangent", 4, 2, 5, 1))
sketch13.addConstraint(Sketcher.Constraint("Tangent", 5, 2, 0, 1))
sketch13.addConstraint(Sketcher.Constraint("Vertical", 0))
sketch13.addConstraint(Sketcher.Constraint("Horizontal", 1))
sketch13.addConstraint(Sketcher.Constraint("Vertical", 3))
sketch13.addConstraint(Sketcher.Constraint("Horizontal", 4))
sketch13.addConstraint(Sketcher.Constraint("Equal", 2, 5))
sketch13.addConstraint(Sketcher.Constraint("Equal", 4, 0))
sketch13.addConstraint(Sketcher.Constraint("Radius", 2, 1.5))
sketch13.addConstraint(Sketcher.Constraint("DistanceX", 1, 2, 1, 1, 2.5))
sketch13.addConstraint(Sketcher.Constraint("DistanceX", -1, 1, 2, 3, 7.55))
sketch13.addConstraint(Sketcher.Constraint("DistanceY", 2, 3, -1, 1, 12.72))
pocket3 = body.newObject("PartDesign::Pocket", "Pocket002")
pocket3.Profile = sketch13
pocket3.Length = 1

# Sketch on YZ plane
sketch14 = body.newObject("Sketcher::SketchObject", "Sketch013")
sketch14.AttachmentSupport = (doc.getObject("YZ_Plane"), [""])
sketch14.MapMode = "FlatFace"
sketch14.addGeometry(Part.LineSegment(V(29.35, 25.58, 0), V(30.2, 25.58, 0)), False)
sketch14.addGeometry(Part.LineSegment(V(30.2, 25.58, 0), V(29.35, 32.48, 0)), False)
sketch14.addGeometry(Part.LineSegment(V(29.35, 32.48, 0), V(29.35, 25.58, 0)), False)
sketch14.addGeometry(Part.LineSegment(V(30.2, -15.22, 0), V(29.35, -15.22, 0)), False)
sketch14.addGeometry(Part.LineSegment(V(29.35, -15.22, 0), V(29.35, -22.12, 0)), False)
sketch14.addGeometry(Part.LineSegment(V(29.35, -22.12, 0), V(30.2, -15.22, 0)), False)
sketch14.addConstraint(Sketcher.Constraint("Coincident", 0, 2, 1, 1))
sketch14.addConstraint(Sketcher.Constraint("Coincident", 1, 2, 2, 1))
sketch14.addConstraint(Sketcher.Constraint("Coincident", 2, 2, 0, 1))
sketch14.addConstraint(Sketcher.Constraint("Coincident", 3, 2, 4, 1))
sketch14.addConstraint(Sketcher.Constraint("Coincident", 4, 2, 5, 1))
sketch14.addConstraint(Sketcher.Constraint("Coincident", 5, 2, 3, 1))
sketch14.addConstraint(Sketcher.Constraint("Horizontal", 0))
sketch14.addConstraint(Sketcher.Constraint("Vertical", 2))
sketch14.addConstraint(Sketcher.Constraint("Horizontal", 3))
sketch14.addConstraint(Sketcher.Constraint("Vertical", 4))
sketch14.addConstraint(Sketcher.Constraint("Vertical", 2, 2, 3, 2))
sketch14.addConstraint(Sketcher.Constraint("Vertical", 0, 2, 5, 2))
sketch14.addConstraint(Sketcher.Constraint("Equal", 2, 4))
sketch14.addConstraint(Sketcher.Constraint("DistanceY", 2, 2, 2, 1, 6.9))
sketch14.addConstraint(Sketcher.Constraint("DistanceX", 0, 1, 0, 2, 0.85))
sketch14.addConstraint(Sketcher.Constraint("DistanceX", -1, 1, 0, 2, 30.2))
sketch14.addConstraint(Sketcher.Constraint("DistanceY", 3, 2, 2, 2, 40.8))
sketch14.addConstraint(Sketcher.Constraint("DistanceY", -1, 1, 0, 2, 25.58))
pad11 = body.newObject("PartDesign::Pad", "Pad010")
pad11.Profile = sketch14
pad11.Length = 1.2
pad11.Midplane = True

doc.recompute()
